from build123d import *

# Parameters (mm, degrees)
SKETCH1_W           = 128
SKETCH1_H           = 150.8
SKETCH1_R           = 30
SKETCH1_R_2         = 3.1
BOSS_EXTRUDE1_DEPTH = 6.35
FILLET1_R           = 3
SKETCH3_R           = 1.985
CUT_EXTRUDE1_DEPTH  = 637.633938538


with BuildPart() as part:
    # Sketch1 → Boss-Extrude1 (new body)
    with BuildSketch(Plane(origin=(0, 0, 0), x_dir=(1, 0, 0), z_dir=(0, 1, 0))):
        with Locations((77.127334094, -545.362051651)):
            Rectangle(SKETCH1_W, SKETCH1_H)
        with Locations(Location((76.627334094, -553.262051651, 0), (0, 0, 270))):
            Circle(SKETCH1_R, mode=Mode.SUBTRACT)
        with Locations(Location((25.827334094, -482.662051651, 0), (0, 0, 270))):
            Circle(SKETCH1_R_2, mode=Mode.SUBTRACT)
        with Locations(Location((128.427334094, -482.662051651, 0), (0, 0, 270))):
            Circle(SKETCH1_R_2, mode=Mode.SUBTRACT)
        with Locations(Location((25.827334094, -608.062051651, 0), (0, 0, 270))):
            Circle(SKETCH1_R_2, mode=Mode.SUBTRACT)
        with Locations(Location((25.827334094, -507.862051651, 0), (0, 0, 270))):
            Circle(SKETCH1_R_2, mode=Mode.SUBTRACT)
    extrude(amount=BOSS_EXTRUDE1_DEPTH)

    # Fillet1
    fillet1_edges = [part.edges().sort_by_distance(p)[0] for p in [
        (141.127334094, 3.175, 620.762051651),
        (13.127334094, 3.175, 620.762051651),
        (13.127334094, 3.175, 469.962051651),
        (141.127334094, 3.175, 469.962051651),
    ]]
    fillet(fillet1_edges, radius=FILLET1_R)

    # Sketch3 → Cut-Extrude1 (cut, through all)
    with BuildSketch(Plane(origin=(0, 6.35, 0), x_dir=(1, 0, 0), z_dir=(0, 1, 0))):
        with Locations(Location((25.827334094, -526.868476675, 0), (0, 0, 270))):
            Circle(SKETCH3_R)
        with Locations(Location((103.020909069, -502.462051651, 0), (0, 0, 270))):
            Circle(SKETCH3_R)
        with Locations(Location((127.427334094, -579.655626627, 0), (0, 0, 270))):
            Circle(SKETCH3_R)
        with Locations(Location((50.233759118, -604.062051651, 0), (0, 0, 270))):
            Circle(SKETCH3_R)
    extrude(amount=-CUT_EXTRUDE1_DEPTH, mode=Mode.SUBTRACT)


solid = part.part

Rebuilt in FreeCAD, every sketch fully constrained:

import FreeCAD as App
import Part
import Sketcher
Q = App.Units.Quantity


def edges_at(feature, points):
    """Names of the edges that pass closest to the given points."""
    edges = feature.Shape.Edges
    near = lambda p: min(range(len(edges)), key=lambda i: edges[i].distToShape(Part.Vertex(*p))[0])
    return sorted({f"Edge{near(p) + 1}" for p in points})


def add_polygon(sketch, points):
    """Adds a closed chain of lines whose ends are joined by coincident constraints."""
    first, n = sketch.GeometryCount, len(points)
    for a, b in zip(points, points[1:] + points[:1]):
        sketch.addGeometry(Part.LineSegment(App.Vector(*a, 0), App.Vector(*b, 0)), False)
    for i in range(n):
        sketch.addConstraint(Sketcher.Constraint("Coincident", first + i, 2, first + (i + 1) % n, 1))

doc = App.newDocument("Part")
body = doc.addObject("PartDesign::Body", "Body")

# Sketch on XZ plane
sketch1 = body.newObject("Sketcher::SketchObject", "Sketch")
sketch1.AttachmentSupport = (doc.getObject("XZ_Plane"), [""])
sketch1.MapMode = "FlatFace"
add_polygon(sketch1, [(13.127334, 469.962052), (13.127334, 620.762052), (141.127334, 620.762052), (141.127334, 469.962052)])  # lines 0-3
sketch1.addGeometry(Part.Circle(App.Vector(25.827334, 608.062052, 0), App.Vector(0, 0, 1), 3.1), False)  # 4
sketch1.addGeometry(Part.Circle(App.Vector(76.627334, 553.262052, 0), App.Vector(0, 0, 1), 30), False)  # 5
sketch1.addGeometry(Part.Circle(App.Vector(25.827334, 507.862052, 0), App.Vector(0, 0, 1), 3.1), False)  # 6
sketch1.addGeometry(Part.Circle(App.Vector(25.827334, 482.662052, 0), App.Vector(0, 0, 1), 3.1), False)  # 7
sketch1.addGeometry(Part.Circle(App.Vector(128.427334, 482.662052, 0), App.Vector(0, 0, 1), 3.1), False)  # 8
sketch1.addConstraint(Sketcher.Constraint("Vertical", 0))
sketch1.addConstraint(Sketcher.Constraint("Horizontal", 1))
sketch1.addConstraint(Sketcher.Constraint("Vertical", 2))
sketch1.addConstraint(Sketcher.Constraint("Horizontal", 3))
sketch1.addConstraint(Sketcher.Constraint("Equal", 4, 6))
sketch1.addConstraint(Sketcher.Constraint("Equal", 6, 7))
sketch1.addConstraint(Sketcher.Constraint("Equal", 7, 8))
sketch1.addConstraint(Sketcher.Constraint("Horizontal", 7, 3, 8, 3))
sketch1.addConstraint(Sketcher.Constraint("Vertical", 4, 3, 6, 3))
sketch1.addConstraint(Sketcher.Constraint("Vertical", 6, 3, 7, 3))
sketch1.addConstraint(Sketcher.Constraint("Diameter", 5, Q("60 mm")))
sketch1.addConstraint(Sketcher.Constraint("Diameter", 4, Q("6.2 mm")))
sketch1.addConstraint(Sketcher.Constraint("DistanceX", 1, 1, 1, 2, Q("128 mm")))
sketch1.addConstraint(Sketcher.Constraint("DistanceY", 0, 1, 0, 2, Q("150.8 mm")))
sketch1.addConstraint(Sketcher.Constraint("DistanceX", 4, 3, 5, 3, Q("50.8 mm")))
sketch1.addConstraint(Sketcher.Constraint("DistanceY", 5, 3, 4, 3, Q("54.8 mm")))
sketch1.addConstraint(Sketcher.Constraint("DistanceY", 6, 3, 5, 3, Q("45.4 mm")))
sketch1.addConstraint(Sketcher.Constraint("DistanceY", 7, 3, 6, 3, Q("25.2 mm")))
sketch1.addConstraint(Sketcher.Constraint("DistanceX", 5, 3, 8, 3, Q("51.8 mm")))
sketch1.addConstraint(Sketcher.Constraint("DistanceX", 0, 2, 4, 3, Q("12.7 mm")))
sketch1.addConstraint(Sketcher.Constraint("DistanceY", 4, 3, 0, 2, Q("12.7 mm")))
sketch1.addConstraint(Sketcher.Constraint("DistanceY", -1, 1, 4, 3, Q("608.062052 mm")))
sketch1.addConstraint(Sketcher.Constraint("DistanceX", -1, 1, 4, 3, Q("25.827334 mm")))
pad1 = body.newObject("PartDesign::Pad", "Pad")
pad1.Profile = sketch1
pad1.Length = 6.35
pad1.Reversed = True
doc.recompute()

fillet = body.newObject("PartDesign::Fillet", "Fillet")
fillet.Base = (pad1, edges_at(pad1, [
    (141.127, 3.175, 620.762),
    (13.127, 3.175, 620.762),
    (13.127, 3.175, 469.962),
    (141.127, 3.175, 469.962),
]))
fillet.Radius = 3

# Sketch on XZ plane
sketch2 = body.newObject("Sketcher::SketchObject", "Sketch001")
sketch2.AttachmentSupport = (doc.getObject("XZ_Plane"), [""])
sketch2.MapMode = "FlatFace"
sketch2.AttachmentOffset = App.Placement(App.Vector(0, 0, -6.35), App.Rotation())
sketch2.addGeometry(Part.Circle(App.Vector(25.827334, 526.868477, 0), App.Vector(0, 0, 1), 1.985), False)
sketch2.addGeometry(Part.Circle(App.Vector(103.020909, 502.462052, 0), App.Vector(0, 0, 1), 1.985), False)
sketch2.addGeometry(Part.Circle(App.Vector(127.427334, 579.655627, 0), App.Vector(0, 0, 1), 1.985), False)
sketch2.addGeometry(Part.Circle(App.Vector(50.233759, 604.062052, 0), App.Vector(0, 0, 1), 1.985), False)
sketch2.addConstraint(Sketcher.Constraint("Equal", 0, 1))
sketch2.addConstraint(Sketcher.Constraint("Equal", 1, 2))
sketch2.addConstraint(Sketcher.Constraint("Equal", 2, 3))
sketch2.addConstraint(Sketcher.Constraint("Diameter", 0, Q("3.97 mm")))
sketch2.addConstraint(Sketcher.Constraint("DistanceX", 0, 3, 2, 3, Q("101.6 mm")))
sketch2.addConstraint(Sketcher.Constraint("DistanceY", 1, 3, 3, 3, Q("101.6 mm")))
sketch2.addConstraint(Sketcher.Constraint("DistanceX", -1, 1, 1, 3, Q("103.020909 mm")))
sketch2.addConstraint(Sketcher.Constraint("DistanceY", -1, 1, 1, 3, Q("502.462052 mm")))
sketch2.addConstraint(Sketcher.Constraint("DistanceX", -1, 1, 3, 3, Q("50.233759 mm")))
sketch2.addConstraint(Sketcher.Constraint("DistanceY", 0, 3, 2, 3, Q("52.78715 mm")))
sketch2.addConstraint(Sketcher.Constraint("DistanceX", -1, 1, 0, 3, Q("25.827334 mm")))
sketch2.addConstraint(Sketcher.Constraint("DistanceY", -1, 1, 0, 3, Q("526.868477 mm")))
pocket1 = body.newObject("PartDesign::Pocket", "Pocket")
pocket1.Profile = sketch2
pocket1.Type = "ThroughAll"
pocket1.Reversed = True

doc.recompute()
